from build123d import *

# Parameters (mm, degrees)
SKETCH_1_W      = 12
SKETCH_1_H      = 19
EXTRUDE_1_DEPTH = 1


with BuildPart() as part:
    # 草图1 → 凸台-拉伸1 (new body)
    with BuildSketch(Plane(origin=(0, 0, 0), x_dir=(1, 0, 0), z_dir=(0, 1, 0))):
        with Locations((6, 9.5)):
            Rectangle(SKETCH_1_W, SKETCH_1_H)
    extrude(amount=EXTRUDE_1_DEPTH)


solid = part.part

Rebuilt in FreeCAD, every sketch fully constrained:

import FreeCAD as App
import Part
import Sketcher
from FreeCAD import Vector


def add_polygon(sketch, points):
    """Adds a closed chain of lines whose ends are joined by coincident constraints."""
    first, n = sketch.GeometryCount, len(points)
    for a, b in zip(points, points[1:] + points[:1]):
        sketch.addGeometry(Part.LineSegment(App.Vector(*a, 0), App.Vector(*b, 0)), False)
    for i in range(n):
        sketch.addConstraint(Sketcher.Constraint("Coincident", first + i, 2, first + (i + 1) % n, 1))

doc = App.newDocument("Part")
body = doc.addObject("PartDesign::Body", "Body")

sketch1 = body.newObject("Sketcher::SketchObject", "Sketch")
sketch1.AttachmentSupport = (doc.getObject("XZ_Plane"), [""])
sketch1.MapMode = "FlatFace"
add_polygon(sketch1, [(0, -19), (0, 0), (12, 0), (12, -19)])
sketch1.addConstraint(Sketcher.Constraint("Vertical", 0))
sketch1.addConstraint(Sketcher.Constraint("Horizontal", 1))
sketch1.addConstraint(Sketcher.Constraint("Vertical", 2))
sketch1.addConstraint(Sketcher.Constraint("Horizontal", 3))
sketch1.addConstraint(Sketcher.Constraint("Coincident", 0, 2, -1, 1))
sketch1.addConstraint(Sketcher.Constraint("DistanceX", 1, 1, 1, 2, 12.0))
sketch1.addConstraint(Sketcher.Constraint("DistanceY", 0, 1, 0, 2, 19.0))
pad1 = body.newObject("PartDesign::Pad", "Pad")
pad1.Profile = sketch1
pad1.Length = 1
pad1.Reversed = True

doc.recompute()
